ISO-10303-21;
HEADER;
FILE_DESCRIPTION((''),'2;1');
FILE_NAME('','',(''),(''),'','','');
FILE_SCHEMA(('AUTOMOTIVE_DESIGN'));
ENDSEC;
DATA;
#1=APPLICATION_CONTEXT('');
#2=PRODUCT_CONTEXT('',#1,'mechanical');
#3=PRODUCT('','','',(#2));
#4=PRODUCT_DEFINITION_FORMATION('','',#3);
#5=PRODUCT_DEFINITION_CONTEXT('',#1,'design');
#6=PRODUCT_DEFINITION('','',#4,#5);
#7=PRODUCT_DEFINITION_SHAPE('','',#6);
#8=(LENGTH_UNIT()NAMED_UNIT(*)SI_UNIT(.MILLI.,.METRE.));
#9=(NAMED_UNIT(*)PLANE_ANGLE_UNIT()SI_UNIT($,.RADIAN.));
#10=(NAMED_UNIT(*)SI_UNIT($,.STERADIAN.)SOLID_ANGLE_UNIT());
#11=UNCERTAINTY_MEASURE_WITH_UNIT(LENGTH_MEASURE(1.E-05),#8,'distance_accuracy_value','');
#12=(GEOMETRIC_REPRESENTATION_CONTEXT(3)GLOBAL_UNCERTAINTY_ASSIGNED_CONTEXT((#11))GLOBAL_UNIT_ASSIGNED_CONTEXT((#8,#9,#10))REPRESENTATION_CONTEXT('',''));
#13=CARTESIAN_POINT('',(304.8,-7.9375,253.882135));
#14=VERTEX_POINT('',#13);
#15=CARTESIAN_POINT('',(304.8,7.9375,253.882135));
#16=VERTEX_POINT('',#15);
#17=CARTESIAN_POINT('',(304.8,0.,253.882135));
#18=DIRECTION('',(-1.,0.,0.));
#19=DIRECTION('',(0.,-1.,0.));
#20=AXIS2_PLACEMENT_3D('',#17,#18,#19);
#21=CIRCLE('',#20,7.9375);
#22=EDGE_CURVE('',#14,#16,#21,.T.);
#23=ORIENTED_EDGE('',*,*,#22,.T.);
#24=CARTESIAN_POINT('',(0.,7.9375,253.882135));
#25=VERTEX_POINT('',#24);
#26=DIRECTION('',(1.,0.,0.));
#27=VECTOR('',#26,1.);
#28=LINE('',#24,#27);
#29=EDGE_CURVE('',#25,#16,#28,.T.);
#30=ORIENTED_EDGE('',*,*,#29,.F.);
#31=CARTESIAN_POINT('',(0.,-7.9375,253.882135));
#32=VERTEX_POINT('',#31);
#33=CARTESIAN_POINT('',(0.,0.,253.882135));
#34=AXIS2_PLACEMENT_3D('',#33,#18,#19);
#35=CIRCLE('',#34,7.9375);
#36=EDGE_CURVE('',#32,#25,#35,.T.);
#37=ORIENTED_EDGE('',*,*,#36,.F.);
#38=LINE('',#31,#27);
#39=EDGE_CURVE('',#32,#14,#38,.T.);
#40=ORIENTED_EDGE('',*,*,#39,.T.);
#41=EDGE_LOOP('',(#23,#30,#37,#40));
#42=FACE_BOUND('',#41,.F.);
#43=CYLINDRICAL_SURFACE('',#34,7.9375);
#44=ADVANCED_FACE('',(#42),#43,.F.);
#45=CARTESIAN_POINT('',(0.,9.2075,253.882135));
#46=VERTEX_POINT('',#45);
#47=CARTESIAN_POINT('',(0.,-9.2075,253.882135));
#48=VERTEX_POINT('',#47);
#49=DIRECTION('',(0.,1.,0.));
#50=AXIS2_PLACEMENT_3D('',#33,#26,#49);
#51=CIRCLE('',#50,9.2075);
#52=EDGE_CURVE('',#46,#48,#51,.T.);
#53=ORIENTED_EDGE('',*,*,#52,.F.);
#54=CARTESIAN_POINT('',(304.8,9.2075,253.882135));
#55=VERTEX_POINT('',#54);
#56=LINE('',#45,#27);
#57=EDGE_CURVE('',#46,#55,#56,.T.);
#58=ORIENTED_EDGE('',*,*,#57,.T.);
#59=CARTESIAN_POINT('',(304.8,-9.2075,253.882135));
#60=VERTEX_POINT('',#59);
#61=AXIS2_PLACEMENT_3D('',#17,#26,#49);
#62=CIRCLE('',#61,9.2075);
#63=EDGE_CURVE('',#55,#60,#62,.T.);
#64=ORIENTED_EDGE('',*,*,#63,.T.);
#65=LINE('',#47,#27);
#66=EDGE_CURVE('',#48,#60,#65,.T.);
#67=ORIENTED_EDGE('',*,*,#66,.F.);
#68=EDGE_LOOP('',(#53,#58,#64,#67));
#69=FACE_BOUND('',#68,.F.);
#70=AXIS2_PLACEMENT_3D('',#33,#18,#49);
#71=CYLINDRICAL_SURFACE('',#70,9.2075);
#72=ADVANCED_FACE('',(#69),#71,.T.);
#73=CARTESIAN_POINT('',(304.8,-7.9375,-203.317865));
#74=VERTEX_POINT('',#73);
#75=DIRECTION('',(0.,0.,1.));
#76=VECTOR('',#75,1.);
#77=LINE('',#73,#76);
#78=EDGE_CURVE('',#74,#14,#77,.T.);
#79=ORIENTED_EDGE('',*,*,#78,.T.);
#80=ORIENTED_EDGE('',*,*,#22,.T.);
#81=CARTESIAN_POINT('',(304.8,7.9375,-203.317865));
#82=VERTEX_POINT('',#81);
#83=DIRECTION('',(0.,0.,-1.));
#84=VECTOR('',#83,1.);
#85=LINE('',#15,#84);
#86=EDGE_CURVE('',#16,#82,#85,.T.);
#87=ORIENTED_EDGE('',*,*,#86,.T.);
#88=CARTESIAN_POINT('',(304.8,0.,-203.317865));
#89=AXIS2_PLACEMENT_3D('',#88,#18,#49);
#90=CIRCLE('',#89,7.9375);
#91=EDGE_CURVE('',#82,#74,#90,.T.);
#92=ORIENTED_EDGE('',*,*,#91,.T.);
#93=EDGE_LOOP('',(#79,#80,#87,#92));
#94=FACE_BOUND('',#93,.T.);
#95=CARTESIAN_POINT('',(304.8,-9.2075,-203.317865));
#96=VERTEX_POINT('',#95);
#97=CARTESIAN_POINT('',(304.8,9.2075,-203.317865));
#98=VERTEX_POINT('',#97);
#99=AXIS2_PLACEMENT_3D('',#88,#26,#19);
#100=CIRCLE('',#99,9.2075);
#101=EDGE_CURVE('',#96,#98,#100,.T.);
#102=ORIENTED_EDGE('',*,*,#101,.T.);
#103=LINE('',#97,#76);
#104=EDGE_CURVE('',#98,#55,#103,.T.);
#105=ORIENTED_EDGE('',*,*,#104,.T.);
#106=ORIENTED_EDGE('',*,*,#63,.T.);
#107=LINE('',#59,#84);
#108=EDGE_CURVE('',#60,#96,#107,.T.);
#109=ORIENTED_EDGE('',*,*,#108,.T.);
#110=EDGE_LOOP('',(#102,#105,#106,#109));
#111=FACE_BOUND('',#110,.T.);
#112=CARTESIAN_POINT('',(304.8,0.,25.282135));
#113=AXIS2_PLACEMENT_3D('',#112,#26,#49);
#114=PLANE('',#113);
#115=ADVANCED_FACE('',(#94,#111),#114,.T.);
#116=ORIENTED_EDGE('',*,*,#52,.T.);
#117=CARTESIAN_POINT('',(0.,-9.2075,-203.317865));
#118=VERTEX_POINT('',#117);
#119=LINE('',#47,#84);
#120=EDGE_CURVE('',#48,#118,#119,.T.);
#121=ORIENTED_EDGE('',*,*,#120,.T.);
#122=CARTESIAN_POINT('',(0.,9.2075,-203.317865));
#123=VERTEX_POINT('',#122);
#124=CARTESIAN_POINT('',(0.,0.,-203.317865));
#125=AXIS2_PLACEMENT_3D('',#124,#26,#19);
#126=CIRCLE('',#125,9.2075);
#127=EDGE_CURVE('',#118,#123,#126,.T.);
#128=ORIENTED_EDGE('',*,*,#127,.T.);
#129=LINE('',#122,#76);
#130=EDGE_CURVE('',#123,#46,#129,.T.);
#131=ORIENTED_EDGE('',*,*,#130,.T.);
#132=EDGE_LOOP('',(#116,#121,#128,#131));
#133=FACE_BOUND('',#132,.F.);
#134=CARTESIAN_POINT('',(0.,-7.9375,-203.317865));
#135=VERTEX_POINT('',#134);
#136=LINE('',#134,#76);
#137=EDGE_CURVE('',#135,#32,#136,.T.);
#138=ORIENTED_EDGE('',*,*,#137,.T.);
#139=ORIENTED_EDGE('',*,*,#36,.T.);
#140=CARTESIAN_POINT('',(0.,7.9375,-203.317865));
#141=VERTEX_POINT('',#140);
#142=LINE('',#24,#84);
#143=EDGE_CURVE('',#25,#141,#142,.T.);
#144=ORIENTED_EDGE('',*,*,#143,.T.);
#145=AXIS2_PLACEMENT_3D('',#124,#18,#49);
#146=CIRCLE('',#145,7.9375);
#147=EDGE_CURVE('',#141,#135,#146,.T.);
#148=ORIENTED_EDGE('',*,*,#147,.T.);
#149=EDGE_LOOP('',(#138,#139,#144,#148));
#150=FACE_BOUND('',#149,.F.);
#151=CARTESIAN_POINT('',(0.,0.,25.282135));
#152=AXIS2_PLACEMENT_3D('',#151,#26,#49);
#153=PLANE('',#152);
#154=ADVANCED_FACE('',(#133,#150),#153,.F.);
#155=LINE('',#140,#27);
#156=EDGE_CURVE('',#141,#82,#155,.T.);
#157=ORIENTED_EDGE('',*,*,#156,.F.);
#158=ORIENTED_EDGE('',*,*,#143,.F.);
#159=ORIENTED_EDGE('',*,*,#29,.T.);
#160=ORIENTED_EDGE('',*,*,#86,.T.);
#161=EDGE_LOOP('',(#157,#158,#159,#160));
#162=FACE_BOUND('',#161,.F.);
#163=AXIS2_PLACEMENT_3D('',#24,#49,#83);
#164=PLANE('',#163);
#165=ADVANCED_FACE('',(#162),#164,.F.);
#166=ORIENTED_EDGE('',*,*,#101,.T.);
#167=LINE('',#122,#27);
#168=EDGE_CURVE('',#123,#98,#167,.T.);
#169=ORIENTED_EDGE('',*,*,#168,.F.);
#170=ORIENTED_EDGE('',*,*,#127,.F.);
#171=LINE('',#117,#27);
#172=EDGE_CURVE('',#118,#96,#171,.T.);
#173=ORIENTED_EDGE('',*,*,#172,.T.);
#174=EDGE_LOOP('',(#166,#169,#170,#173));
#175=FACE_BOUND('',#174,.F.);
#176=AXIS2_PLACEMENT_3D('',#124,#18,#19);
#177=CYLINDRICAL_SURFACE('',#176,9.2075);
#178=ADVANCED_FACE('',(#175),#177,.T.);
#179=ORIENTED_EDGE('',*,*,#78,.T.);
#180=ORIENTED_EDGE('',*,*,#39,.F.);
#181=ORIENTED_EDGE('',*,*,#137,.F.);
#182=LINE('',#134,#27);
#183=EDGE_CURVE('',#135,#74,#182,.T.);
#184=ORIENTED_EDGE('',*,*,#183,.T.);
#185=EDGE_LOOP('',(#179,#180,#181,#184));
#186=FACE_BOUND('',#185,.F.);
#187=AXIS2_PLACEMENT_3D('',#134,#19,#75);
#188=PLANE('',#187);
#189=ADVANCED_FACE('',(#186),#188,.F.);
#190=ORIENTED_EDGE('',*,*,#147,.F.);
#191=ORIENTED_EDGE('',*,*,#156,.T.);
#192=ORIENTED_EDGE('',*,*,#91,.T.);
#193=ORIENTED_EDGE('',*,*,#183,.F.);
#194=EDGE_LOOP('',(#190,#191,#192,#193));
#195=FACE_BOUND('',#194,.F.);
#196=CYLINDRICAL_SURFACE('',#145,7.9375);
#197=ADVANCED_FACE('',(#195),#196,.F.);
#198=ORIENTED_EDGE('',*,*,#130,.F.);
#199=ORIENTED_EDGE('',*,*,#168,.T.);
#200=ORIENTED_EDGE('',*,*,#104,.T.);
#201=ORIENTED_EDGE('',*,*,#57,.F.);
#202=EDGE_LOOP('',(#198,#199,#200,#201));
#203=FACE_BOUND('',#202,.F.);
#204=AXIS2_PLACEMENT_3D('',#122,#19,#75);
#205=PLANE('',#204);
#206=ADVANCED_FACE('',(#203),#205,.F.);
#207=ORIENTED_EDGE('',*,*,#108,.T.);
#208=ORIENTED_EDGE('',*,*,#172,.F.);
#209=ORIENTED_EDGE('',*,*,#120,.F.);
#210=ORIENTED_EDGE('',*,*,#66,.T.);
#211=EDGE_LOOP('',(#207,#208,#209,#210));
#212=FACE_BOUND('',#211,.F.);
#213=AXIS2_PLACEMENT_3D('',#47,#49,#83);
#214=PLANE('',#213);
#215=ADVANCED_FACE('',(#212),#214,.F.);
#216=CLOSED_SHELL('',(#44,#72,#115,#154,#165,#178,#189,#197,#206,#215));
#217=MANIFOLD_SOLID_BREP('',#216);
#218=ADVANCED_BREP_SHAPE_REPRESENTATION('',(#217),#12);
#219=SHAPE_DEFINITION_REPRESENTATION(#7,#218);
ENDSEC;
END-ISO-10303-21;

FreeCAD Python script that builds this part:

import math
import FreeCAD as App
import Part
import Sketcher

V = App.Vector
Q = App.Units.Quantity

doc = App.newDocument("Part")
body = doc.addObject("PartDesign::Body", "Body")

# Sketch on YZ plane
sketch1 = body.newObject("Sketcher::SketchObject", "Sketch")
sketch1.AttachmentSupport = (doc.getObject("YZ_Plane"), [""])
sketch1.MapMode = "FlatFace"
sketch1.addGeometry([
    Part.ArcOfCircle(Part.Circle(V(0, 254, 0), V(0, 0, 1), 9), math.radians(0), math.radians(180)),  # 0
    Part.LineSegment(V(-9, 254, 0), V(-9, -203, 0)),  # 1
    Part.ArcOfCircle(Part.Circle(V(0, -203, 0), V(0, 0, 1), 9), math.radians(180), math.radians(360)),  # 2
    Part.LineSegment(V(9, -203, 0), V(9, 254, 0)),  # 3
    Part.LineSegment(V(-8, -203, 0), V(-8, 254, 0)),  # 4
    Part.ArcOfCircle(Part.Circle(V(0, 254, 0), V(0, 0, 1), 8), math.radians(0), math.radians(180)),  # 5
    Part.LineSegment(V(8, 254, 0), V(8, -203, 0)),  # 6
    Part.ArcOfCircle(Part.Circle(V(0, -203, 0), V(0, 0, 1), 8), math.radians(180), math.radians(360)),  # 7
], False)
sketch1.addConstraint([
    Sketcher.Constraint("Tangent", 0, 2, 1, 1),
    Sketcher.Constraint("Tangent", 1, 2, 2, 1),
    Sketcher.Constraint("Tangent", 2, 2, 3, 1),
    Sketcher.Constraint("Tangent", 3, 2, 0, 1),
    Sketcher.Constraint("Tangent", 4, 2, 5, 2),
    Sketcher.Constraint("Tangent", 5, 1, 6, 1),
    Sketcher.Constraint("Tangent", 6, 2, 7, 2),
    Sketcher.Constraint("Tangent", 7, 1, 4, 1),
    Sketcher.Constraint("Vertical", 1),
    Sketcher.Constraint("Vertical", 3),
    Sketcher.Constraint("Vertical", 4),
    Sketcher.Constraint("Vertical", 6),
    Sketcher.Constraint("Coincident", 5, 3, 0, 3),
    Sketcher.Constraint("PointOnObject", 0, 3, -2),
    Sketcher.Constraint("Horizontal", 7, 3, 1, 2),
    Sketcher.Constraint("DistanceY", 1, 2, 1, 1, Q("18 in")),
    Sketcher.Constraint("Radius", 5, Q("0.3125 in")),
    Sketcher.Constraint("Radius", 0, Q("0.3625 in")),
    Sketcher.Constraint("DistanceY", -1, 1, 0, 3, 253.882135),
])
pad1 = body.newObject("PartDesign::Pad", "Pad")
pad1.Profile = sketch1
pad1.Length = Q("12 in")

doc.recompute()
